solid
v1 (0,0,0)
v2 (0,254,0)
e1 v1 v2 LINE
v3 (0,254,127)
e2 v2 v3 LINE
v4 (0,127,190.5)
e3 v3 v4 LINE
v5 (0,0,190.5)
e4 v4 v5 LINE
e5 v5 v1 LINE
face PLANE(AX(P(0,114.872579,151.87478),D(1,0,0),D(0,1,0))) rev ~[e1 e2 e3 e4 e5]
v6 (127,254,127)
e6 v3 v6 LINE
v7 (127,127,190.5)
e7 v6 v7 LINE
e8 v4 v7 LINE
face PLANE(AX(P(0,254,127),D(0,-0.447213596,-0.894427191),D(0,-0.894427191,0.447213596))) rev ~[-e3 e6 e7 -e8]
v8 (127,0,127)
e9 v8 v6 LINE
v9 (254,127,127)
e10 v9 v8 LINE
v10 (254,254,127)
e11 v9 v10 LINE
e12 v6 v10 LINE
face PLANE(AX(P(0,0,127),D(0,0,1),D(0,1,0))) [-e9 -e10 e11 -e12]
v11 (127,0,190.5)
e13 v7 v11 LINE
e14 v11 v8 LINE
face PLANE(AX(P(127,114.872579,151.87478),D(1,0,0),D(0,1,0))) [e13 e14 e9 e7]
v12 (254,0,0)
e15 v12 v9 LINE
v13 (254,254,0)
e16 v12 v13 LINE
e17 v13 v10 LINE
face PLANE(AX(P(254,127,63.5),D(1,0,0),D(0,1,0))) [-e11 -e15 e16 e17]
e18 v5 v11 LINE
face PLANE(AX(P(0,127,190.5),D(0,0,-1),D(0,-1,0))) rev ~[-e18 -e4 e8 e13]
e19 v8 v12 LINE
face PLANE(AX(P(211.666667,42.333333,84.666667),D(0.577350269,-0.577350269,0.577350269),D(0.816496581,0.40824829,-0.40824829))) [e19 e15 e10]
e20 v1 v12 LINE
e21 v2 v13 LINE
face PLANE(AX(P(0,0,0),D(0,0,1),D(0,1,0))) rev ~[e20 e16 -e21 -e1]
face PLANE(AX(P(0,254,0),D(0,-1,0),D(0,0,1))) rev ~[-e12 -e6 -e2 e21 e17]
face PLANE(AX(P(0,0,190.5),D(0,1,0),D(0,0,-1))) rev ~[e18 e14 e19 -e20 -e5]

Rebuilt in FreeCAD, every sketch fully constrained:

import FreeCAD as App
import Part
import Sketcher

V = App.Vector
Q = App.Units.Quantity

doc = App.newDocument("Part")
body = doc.addObject("PartDesign::Body", "Body")

sketch1 = body.newObject("Sketcher::SketchObject", "Sketch")
sketch1.AttachmentSupport = (doc.getObject("YZ_Plane"), [""])
sketch1.MapMode = "FlatFace"
sketch1.addGeometry(Part.LineSegment(V(0, 127, 0), V(0, 0, 0)), False)
sketch1.addGeometry(Part.LineSegment(V(0, 0, 0), V(254, 0, 0)), False)
sketch1.addGeometry(Part.LineSegment(V(254, 0, 0), V(254, 127, 0)), False)
sketch1.addGeometry(Part.LineSegment(V(254, 127, 0), V(0, 127, 0)), False)
sketch1.addConstraint(Sketcher.Constraint("Coincident", 0, 2, 1, 1))
sketch1.addConstraint(Sketcher.Constraint("Coincident", 1, 2, 2, 1))
sketch1.addConstraint(Sketcher.Constraint("Coincident", 2, 2, 3, 1))
sketch1.addConstraint(Sketcher.Constraint("Coincident", 3, 2, 0, 1))
sketch1.addConstraint(Sketcher.Constraint("Vertical", 0))
sketch1.addConstraint(Sketcher.Constraint("Horizontal", 1))
sketch1.addConstraint(Sketcher.Constraint("Vertical", 2))
sketch1.addConstraint(Sketcher.Constraint("Horizontal", 3))
sketch1.addConstraint(Sketcher.Constraint("Coincident", 0, 2, -1, 1))
sketch1.addConstraint(Sketcher.Constraint("DistanceX", 1, 1, 1, 2, Q("10 in")))
sketch1.addConstraint(Sketcher.Constraint("DistanceY", 0, 2, 0, 1, Q("5 in")))
pad1 = body.newObject("PartDesign::Pad", "Pad")
pad1.Profile = sketch1
pad1.Length = Q("10 in")

sketch2 = body.newObject("Sketcher::SketchObject", "Sketch001")
sketch2.AttachmentSupport = (doc.getObject("YZ_Plane"), [""])
sketch2.MapMode = "FlatFace"
sketch2.addGeometry(Part.LineSegment(V(0, 190.5, 0), V(0, 127, 0)), False)
sketch2.addGeometry(Part.LineSegment(V(0, 127, 0), V(254, 127, 0)), False)
sketch2.addGeometry(Part.LineSegment(V(254, 127, 0), V(127, 190.5, 0)), False)
sketch2.addGeometry(Part.LineSegment(V(127, 190.5, 0), V(0, 190.5, 0)), False)
sketch2.addConstraint(Sketcher.Constraint("Coincident", 0, 2, 1, 1))
sketch2.addConstraint(Sketcher.Constraint("Coincident", 1, 2, 2, 1))
sketch2.addConstraint(Sketcher.Constraint("Coincident", 2, 2, 3, 1))
sketch2.addConstraint(Sketcher.Constraint("Coincident", 3, 2, 0, 1))
sketch2.addConstraint(Sketcher.Constraint("Vertical", 0))
sketch2.addConstraint(Sketcher.Constraint("Horizontal", 1))
sketch2.addConstraint(Sketcher.Constraint("Horizontal", 3))
sketch2.addConstraint(Sketcher.Constraint("PointOnObject", 0, 2, -2))
sketch2.addConstraint(Sketcher.Constraint("DistanceX", 1, 1, 1, 2, Q("10 in")))
sketch2.addConstraint(Sketcher.Constraint("DistanceX", 3, 2, 3, 1, Q("5 in")))
sketch2.addConstraint(Sketcher.Constraint("DistanceY", 0, 2, 0, 1, Q("2.5 in")))
sketch2.addConstraint(Sketcher.Constraint("DistanceY", -1, 1, 0, 2, Q("5 in")))
pad2 = body.newObject("PartDesign::Pad", "Pad001")
pad2.Profile = sketch2
pad2.Length = Q("5 in")

sketch3 = body.newObject("Sketcher::SketchObject", "Sketch002")
sketch3.Placement = App.Placement(V(84.666667, -84.666667, 84.666667), App.Rotation(V(0.816496581, 0.40824829, -0.40824829), V(0, 0.707106781, 0.707106781), V(0.577350269, -0.577350269, 0.577350269), "ZXY"))
sketch3.addGeometry(Part.LineSegment(V(207.390131, 0, 0), V(207.390131, 179.605122, 0)), False)
sketch3.addGeometry(Part.LineSegment(V(207.390131, 179.605122, 0), V(51.847533, 89.802561, 0)), False)
sketch3.addGeometry(Part.LineSegment(V(51.847533, 89.802561, 0), V(207.390131, 0, 0)), False)
sketch3.addConstraint(Sketcher.Constraint("Coincident", 0, 2, 1, 1))
sketch3.addConstraint(Sketcher.Constraint("Coincident", 1, 2, 2, 1))
sketch3.addConstraint(Sketcher.Constraint("Coincident", 2, 2, 0, 1))
sketch3.addConstraint(Sketcher.Constraint("Vertical", 0))
sketch3.addConstraint(Sketcher.Constraint("PointOnObject", 2, 2, -1))
sketch3.addConstraint(Sketcher.Constraint("Equal", 1, 2))
sketch3.addConstraint(Sketcher.Constraint("Angle", 1, Q("-150 deg")))
sketch3.addConstraint(Sketcher.Constraint("DistanceX", 1, 2, 0, 2, 155.542599))
sketch3.addConstraint(Sketcher.Constraint("DistanceX", -1, 1, 0, 2, 207.390131))
pocket1 = body.newObject("PartDesign::Pocket", "Pocket")
pocket1.Profile = sketch3
pocket1.Type = "ThroughAll"
pocket1.Reversed = True

doc.recompute()
